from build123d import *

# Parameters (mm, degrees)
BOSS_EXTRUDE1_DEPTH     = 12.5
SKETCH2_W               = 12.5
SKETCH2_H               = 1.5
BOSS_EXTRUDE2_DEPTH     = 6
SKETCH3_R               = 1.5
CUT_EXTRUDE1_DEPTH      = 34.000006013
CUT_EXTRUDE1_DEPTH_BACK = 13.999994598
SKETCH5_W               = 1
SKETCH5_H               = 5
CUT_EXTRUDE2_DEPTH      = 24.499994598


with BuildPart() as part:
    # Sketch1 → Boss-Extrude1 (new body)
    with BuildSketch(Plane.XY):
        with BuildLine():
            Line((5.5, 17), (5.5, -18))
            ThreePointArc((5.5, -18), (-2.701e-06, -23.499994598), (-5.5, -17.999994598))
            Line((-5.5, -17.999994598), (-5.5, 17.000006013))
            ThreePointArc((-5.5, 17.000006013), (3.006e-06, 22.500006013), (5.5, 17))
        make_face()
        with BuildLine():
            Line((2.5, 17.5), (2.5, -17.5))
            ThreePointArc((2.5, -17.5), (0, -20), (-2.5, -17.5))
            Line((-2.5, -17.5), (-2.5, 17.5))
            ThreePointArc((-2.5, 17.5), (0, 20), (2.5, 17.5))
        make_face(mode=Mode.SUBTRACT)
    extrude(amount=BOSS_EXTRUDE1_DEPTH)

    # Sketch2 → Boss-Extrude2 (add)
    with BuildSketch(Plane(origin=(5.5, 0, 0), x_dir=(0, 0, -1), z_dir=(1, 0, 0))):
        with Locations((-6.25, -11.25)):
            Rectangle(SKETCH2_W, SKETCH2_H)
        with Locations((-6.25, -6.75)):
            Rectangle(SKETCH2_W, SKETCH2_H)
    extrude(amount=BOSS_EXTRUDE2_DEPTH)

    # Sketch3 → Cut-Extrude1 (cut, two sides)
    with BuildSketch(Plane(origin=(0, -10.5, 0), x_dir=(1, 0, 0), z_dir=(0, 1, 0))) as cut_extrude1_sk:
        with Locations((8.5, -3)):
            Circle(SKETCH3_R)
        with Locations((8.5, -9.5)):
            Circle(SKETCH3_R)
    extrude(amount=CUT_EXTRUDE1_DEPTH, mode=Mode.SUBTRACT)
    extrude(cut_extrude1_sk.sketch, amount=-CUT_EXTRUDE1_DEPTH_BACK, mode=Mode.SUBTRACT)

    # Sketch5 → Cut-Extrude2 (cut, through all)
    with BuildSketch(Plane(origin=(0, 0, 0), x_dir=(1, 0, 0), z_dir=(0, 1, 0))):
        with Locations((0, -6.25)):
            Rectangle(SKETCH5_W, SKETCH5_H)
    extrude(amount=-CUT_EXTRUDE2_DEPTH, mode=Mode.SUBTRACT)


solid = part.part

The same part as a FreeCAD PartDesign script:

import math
import FreeCAD as App
import Part
import Sketcher

V = App.Vector

doc = App.newDocument("Part")
body = doc.addObject("PartDesign::Body", "Body")

sketch1 = doc.addObject("Sketcher::SketchObject", "Sketch")
body.addObject(sketch1)
sketch1.AttachmentSupport = (doc.XY_Plane, [""])
sketch1.MapMode = "FlatFace"
sketch1.addGeometry([
    Part.LineSegment(V(5.5, -18, 0), V(5.5, 17, 0)),
    Part.ArcOfCircle(Part.Circle(V(0, 17.000006, 0), V(0, 0, 1), 5.5), math.radians(-0.000063), math.radians(180)),
    Part.LineSegment(V(-5.5, 17.000006, 0), V(-5.5, -17.999995, 0)),
    Part.ArcOfCircle(Part.Circle(V(0, -17.999995, 0), V(0, 0, 1), 5.5), math.radians(180), math.radians(359.999944)),
    Part.LineSegment(V(2.5, 17.5, 0), V(2.5, -17.5, 0)),
    Part.ArcOfCircle(Part.Circle(V(0, -17.5, 0), V(0, 0, 1), 2.5), math.radians(180), math.radians(360)),
    Part.LineSegment(V(-2.5, -17.5, 0), V(-2.5, 17.5, 0)),
    Part.ArcOfCircle(Part.Circle(V(0, 17.5, 0), V(0, 0, 1), 2.5), math.radians(0), math.radians(180)),
], False)
sketch1.addConstraint([
    Sketcher.Constraint("Tangent", 0, 2, 1, 1),
    Sketcher.Constraint("Tangent", 1, 2, 2, 1),
    Sketcher.Constraint("Tangent", 2, 2, 3, 1),
    Sketcher.Constraint("Tangent", 3, 2, 0, 1),
    Sketcher.Constraint("Tangent", 4, 2, 5, 2),
    Sketcher.Constraint("Tangent", 5, 1, 6, 1),
    Sketcher.Constraint("Tangent", 6, 2, 7, 2),
    Sketcher.Constraint("Tangent", 7, 1, 4, 1),
    Sketcher.Constraint("Vertical", 0),
    Sketcher.Constraint("Vertical", 2),
    Sketcher.Constraint("Vertical", 4),
    Sketcher.Constraint("Vertical", 6),
    Sketcher.Constraint("Symmetric", 5, 3, 7, 3, -1, 1),
    Sketcher.Constraint("PointOnObject", 1, 3, -2),
    Sketcher.Constraint("Equal", 2, 4),
    Sketcher.Constraint("Radius", 1, 5.5),
    Sketcher.Constraint("Radius", 5, 2.5),
    Sketcher.Constraint("DistanceY", 0, 1, 0, 2, 35.0),
    Sketcher.Constraint("DistanceY", -1, 1, 0, 2, 17.0),
])
pad1 = doc.addObject("PartDesign::Pad", "Pad")
body.addObject(pad1)
pad1.Profile = sketch1
pad1.Length = 12.5

sketch2 = doc.addObject("Sketcher::SketchObject", "Sketch001")
body.addObject(sketch2)
sketch2.AttachmentSupport = (doc.YZ_Plane, [""])
sketch2.MapMode = "FlatFace"
sketch2.AttachmentOffset = App.Placement(V(0, 0, 5.5), App.Rotation())
sketch2.addGeometry([
    Part.LineSegment(V(-10.5, 12.5, 0), V(-12, 12.5, 0)),
    Part.LineSegment(V(-12, 12.5, 0), V(-12, 0, 0)),
    Part.LineSegment(V(-12, 0, 0), V(-10.5, 0, 0)),
    Part.LineSegment(V(-10.5, 0, 0), V(-10.5, 12.5, 0)),
    Part.LineSegment(V(-6, 12.5, 0), V(-7.5, 12.5, 0)),
    Part.LineSegment(V(-7.5, 12.5, 0), V(-7.5, 0, 0)),
    Part.LineSegment(V(-7.5, 0, 0), V(-6, 0, 0)),
    Part.LineSegment(V(-6, 0, 0), V(-6, 12.5, 0)),
], False)
sketch2.addConstraint([
    Sketcher.Constraint("Coincident", 0, 2, 1, 1),
    Sketcher.Constraint("Coincident", 1, 2, 2, 1),
    Sketcher.Constraint("Coincident", 2, 2, 3, 1),
    Sketcher.Constraint("Coincident", 3, 2, 0, 1),
    Sketcher.Constraint("Coincident", 4, 2, 5, 1),
    Sketcher.Constraint("Coincident", 5, 2, 6, 1),
    Sketcher.Constraint("Coincident", 6, 2, 7, 1),
    Sketcher.Constraint("Coincident", 7, 2, 4, 1),
    Sketcher.Constraint("Horizontal", 0),
    Sketcher.Constraint("Vertical", 1),
    Sketcher.Constraint("Horizontal", 2),
    Sketcher.Constraint("Vertical", 3),
    Sketcher.Constraint("Horizontal", 4),
    Sketcher.Constraint("Vertical", 5),
    Sketcher.Constraint("Horizontal", 6),
    Sketcher.Constraint("Vertical", 7),
    Sketcher.Constraint("PointOnObject", 1, 2, -1),
    Sketcher.Constraint("PointOnObject", 5, 2, -1),
    Sketcher.Constraint("Horizontal", 3, 2, 4, 2),
    Sketcher.Constraint("Equal", 2, 4),
    Sketcher.Constraint("DistanceX", 0, 2, 0, 1, 1.5),
    Sketcher.Constraint("DistanceY", 1, 2, 1, 1, 12.5),
    Sketcher.Constraint("DistanceX", 0, 2, -1, 1, 12.0),
    Sketcher.Constraint("DistanceX", 6, 2, -1, 1, 6.0),
])
pad2 = doc.addObject("PartDesign::Pad", "Pad001")
body.addObject(pad2)
pad2.Profile = sketch2
pad2.Length = 6

sketch3 = doc.addObject("Sketcher::SketchObject", "Sketch002")
body.addObject(sketch3)
sketch3.AttachmentSupport = (doc.XZ_Plane, [""])
sketch3.MapMode = "FlatFace"
sketch3.AttachmentOffset = App.Placement(V(0, 0, 10.5), App.Rotation())
sketch3.addGeometry([
    Part.Circle(V(8.5, 3, 0), V(0, 0, 1), 1.5),
    Part.Circle(V(8.5, 9.5, 0), V(0, 0, 1), 1.5),
], False)
sketch3.addConstraint([
    Sketcher.Constraint("Equal", 0, 1),
    Sketcher.Constraint("Vertical", 0, 3, 1, 3),
    Sketcher.Constraint("Diameter", 0, 3.0),
    Sketcher.Constraint("DistanceY", -1, 1, 0, 3, 3.0),
    Sketcher.Constraint("DistanceX", -1, 1, 0, 3, 8.5),
    Sketcher.Constraint("DistanceY", -1, 1, 1, 3, 9.5),
])
pocket1 = doc.addObject("PartDesign::Pocket", "Pocket")
body.addObject(pocket1)
pocket1.Profile = sketch3
pocket1.Type = "ThroughAll"
pocket1.Midplane = True

sketch4 = doc.addObject("Sketcher::SketchObject", "Sketch003")
body.addObject(sketch4)
sketch4.AttachmentSupport = (doc.XZ_Plane, [""])
sketch4.MapMode = "FlatFace"
sketch4.addGeometry([
    Part.LineSegment(V(-0.5, 3.75, 0), V(-0.5, 8.75, 0)),
    Part.LineSegment(V(-0.5, 8.75, 0), V(0.5, 8.75, 0)),
    Part.LineSegment(V(0.5, 8.75, 0), V(0.5, 3.75, 0)),
    Part.LineSegment(V(0.5, 3.75, 0), V(-0.5, 3.75, 0)),
], False)
sketch4.addConstraint([
    Sketcher.Constraint("Coincident", 0, 2, 1, 1),
    Sketcher.Constraint("Coincident", 1, 2, 2, 1),
    Sketcher.Constraint("Coincident", 2, 2, 3, 1),
    Sketcher.Constraint("Coincident", 3, 2, 0, 1),
    Sketcher.Constraint("Vertical", 0),
    Sketcher.Constraint("Horizontal", 1),
    Sketcher.Constraint("Vertical", 2),
    Sketcher.Constraint("Horizontal", 3),
    Sketcher.Constraint("DistanceX", 1, 1, 1, 2, 1.0),
    Sketcher.Constraint("DistanceY", 0, 1, 0, 2, 5.0),
    Sketcher.Constraint("DistanceX", 0, 2, -1, 1, 0.5),
    Sketcher.Constraint("DistanceY", -1, 1, 0, 2, 8.75),
])
pocket2 = doc.addObject("PartDesign::Pocket", "Pocket001")
body.addObject(pocket2)
pocket2.Profile = sketch4
pocket2.Type = "ThroughAll"
pocket2.Reversed = True

doc.recompute()
